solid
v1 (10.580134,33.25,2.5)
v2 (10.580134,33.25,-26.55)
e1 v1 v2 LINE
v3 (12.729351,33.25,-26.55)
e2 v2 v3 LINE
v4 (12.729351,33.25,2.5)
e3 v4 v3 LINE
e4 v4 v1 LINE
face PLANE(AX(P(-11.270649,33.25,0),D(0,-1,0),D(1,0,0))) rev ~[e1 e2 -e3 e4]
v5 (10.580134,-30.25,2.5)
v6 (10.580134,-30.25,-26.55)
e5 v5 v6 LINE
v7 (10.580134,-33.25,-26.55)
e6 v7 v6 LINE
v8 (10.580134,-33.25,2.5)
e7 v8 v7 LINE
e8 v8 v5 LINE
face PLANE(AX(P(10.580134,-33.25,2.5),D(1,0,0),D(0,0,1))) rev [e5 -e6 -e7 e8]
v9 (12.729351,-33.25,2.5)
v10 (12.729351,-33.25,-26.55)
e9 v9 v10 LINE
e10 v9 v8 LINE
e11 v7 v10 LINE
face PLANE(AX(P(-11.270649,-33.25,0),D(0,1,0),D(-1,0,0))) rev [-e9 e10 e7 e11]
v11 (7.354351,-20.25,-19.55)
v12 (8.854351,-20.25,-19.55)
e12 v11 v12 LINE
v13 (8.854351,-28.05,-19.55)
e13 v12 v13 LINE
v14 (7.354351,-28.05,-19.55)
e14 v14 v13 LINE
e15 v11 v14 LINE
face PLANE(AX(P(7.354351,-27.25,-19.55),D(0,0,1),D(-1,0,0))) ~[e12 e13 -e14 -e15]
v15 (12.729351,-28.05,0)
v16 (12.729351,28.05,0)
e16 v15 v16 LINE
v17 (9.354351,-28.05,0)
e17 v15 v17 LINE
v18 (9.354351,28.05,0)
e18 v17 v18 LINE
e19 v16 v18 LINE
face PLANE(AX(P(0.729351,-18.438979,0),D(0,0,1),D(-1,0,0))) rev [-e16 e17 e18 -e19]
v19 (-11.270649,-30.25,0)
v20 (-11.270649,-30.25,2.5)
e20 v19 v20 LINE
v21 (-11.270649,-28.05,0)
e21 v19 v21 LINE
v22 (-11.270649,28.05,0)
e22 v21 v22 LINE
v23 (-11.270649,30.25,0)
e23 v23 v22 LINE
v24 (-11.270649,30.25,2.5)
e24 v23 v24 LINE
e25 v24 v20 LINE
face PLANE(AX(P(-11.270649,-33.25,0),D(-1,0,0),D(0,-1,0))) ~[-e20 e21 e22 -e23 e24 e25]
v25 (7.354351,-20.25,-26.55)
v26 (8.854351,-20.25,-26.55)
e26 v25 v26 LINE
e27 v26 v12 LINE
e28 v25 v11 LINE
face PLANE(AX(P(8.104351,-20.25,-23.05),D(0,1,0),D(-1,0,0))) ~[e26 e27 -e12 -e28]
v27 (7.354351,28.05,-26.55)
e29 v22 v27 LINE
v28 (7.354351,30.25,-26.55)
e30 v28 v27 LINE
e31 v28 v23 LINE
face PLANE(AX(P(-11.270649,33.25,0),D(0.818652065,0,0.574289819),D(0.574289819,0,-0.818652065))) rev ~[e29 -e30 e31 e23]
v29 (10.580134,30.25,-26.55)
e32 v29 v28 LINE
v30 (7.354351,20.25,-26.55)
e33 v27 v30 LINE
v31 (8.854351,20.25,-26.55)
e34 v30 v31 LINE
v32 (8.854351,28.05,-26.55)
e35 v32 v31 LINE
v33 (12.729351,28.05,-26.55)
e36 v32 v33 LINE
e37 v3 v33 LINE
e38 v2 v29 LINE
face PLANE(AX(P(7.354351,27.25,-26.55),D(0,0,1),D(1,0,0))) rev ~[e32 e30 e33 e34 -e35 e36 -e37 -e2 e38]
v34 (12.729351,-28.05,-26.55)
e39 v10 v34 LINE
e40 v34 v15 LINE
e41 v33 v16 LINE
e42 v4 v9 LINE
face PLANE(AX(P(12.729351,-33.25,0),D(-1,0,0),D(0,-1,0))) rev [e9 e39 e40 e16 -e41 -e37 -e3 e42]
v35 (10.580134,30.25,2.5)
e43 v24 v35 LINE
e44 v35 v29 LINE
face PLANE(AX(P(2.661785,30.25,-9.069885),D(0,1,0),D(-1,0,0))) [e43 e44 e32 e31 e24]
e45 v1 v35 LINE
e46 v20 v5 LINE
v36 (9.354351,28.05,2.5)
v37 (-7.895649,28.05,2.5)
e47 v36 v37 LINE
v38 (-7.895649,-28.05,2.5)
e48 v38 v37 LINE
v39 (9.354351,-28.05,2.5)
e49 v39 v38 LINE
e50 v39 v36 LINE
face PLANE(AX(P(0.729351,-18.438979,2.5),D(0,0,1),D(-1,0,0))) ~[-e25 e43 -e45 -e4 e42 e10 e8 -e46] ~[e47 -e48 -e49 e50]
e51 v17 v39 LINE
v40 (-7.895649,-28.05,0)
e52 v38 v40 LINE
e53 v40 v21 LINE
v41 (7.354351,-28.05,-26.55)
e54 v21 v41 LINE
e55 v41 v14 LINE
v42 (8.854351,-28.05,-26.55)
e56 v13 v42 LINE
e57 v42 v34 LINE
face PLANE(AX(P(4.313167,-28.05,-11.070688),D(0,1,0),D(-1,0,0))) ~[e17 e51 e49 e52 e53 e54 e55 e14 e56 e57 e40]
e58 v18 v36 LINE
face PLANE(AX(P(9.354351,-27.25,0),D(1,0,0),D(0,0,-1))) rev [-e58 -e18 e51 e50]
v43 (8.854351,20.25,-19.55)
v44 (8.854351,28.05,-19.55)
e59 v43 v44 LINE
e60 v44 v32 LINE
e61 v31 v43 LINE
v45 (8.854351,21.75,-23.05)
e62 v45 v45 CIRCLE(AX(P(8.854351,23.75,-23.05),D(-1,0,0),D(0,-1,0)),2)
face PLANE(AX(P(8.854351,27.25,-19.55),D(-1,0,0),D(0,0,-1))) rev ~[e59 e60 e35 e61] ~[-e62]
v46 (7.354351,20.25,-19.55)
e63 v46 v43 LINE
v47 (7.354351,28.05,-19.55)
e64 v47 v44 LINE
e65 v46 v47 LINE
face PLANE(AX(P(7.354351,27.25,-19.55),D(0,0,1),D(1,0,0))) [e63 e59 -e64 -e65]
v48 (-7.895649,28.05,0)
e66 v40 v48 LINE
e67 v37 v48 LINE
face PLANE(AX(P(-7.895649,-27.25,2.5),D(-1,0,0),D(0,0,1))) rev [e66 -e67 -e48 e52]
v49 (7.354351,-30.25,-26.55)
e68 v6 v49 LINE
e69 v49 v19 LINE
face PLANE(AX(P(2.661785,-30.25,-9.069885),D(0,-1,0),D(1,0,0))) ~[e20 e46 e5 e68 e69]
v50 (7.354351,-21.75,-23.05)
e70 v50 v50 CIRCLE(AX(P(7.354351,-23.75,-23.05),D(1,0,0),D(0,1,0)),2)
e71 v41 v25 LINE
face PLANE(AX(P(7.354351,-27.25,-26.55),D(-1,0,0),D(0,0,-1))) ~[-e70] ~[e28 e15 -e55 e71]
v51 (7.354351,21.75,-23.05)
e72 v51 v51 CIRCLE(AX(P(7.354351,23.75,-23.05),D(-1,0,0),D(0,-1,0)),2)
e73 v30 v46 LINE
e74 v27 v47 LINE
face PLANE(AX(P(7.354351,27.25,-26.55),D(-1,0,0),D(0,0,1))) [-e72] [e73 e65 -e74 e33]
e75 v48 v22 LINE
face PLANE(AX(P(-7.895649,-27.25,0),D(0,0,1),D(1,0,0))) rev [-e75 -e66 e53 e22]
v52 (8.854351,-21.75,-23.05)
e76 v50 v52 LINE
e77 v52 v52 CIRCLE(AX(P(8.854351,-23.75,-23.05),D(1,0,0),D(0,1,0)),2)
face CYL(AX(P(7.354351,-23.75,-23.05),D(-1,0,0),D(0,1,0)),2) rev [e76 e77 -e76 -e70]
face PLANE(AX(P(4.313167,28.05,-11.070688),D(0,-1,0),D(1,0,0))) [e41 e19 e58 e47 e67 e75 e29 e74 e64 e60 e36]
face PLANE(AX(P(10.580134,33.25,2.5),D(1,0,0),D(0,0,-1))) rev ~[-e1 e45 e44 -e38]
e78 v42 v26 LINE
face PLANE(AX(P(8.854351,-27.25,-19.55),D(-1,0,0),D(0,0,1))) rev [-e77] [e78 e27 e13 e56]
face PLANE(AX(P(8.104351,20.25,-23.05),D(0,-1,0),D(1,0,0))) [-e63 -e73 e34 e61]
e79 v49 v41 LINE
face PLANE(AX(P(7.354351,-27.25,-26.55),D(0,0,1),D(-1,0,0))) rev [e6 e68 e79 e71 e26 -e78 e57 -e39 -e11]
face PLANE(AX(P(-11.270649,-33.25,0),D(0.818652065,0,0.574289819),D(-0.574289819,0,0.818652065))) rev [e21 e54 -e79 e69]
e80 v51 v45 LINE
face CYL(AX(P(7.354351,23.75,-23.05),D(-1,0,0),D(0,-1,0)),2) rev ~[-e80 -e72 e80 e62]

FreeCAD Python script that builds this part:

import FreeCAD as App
import Part
import Sketcher

V = App.Vector
Q = App.Units.Quantity

doc = App.newDocument("Part")
body = doc.addObject("PartDesign::Body", "Body")

# Sketch on XY plane
sketch1 = body.newObject("Sketcher::SketchObject", "Sketch")
sketch1.AttachmentSupport = (doc.getObject("XY_Plane"), [""])
sketch1.MapMode = "FlatFace"
sketch1.addGeometry([
    Part.LineSegment(V(-7.895649, 0, 0), V(-7.895649, 27.25, 0)),  # 0
    Part.LineSegment(V(-7.895649, 27.25, 0), V(9.354351, 27.25, 0)),  # 1
    Part.LineSegment(V(9.354351, 27.25, 0), V(9.354351, 0, 0)),  # 2
    Part.LineSegment(V(9.354351, 0, 0), V(12.729351, 0, 0)),  # 3
    Part.LineSegment(V(12.729351, 0, 0), V(12.729351, 33.25, 0)),  # 4
    Part.LineSegment(V(12.729351, 33.25, 0), V(-11.270649, 33.25, 0)),  # 5
    Part.LineSegment(V(-11.270649, 33.25, 0), V(-11.270649, 0, 0)),  # 6
    Part.LineSegment(V(-11.270649, 0, 0), V(-7.895649, 0, 0)),  # 7
], False)
sketch1.addConstraint([
    Sketcher.Constraint("Coincident", 0, 2, 1, 1),
    Sketcher.Constraint("Coincident", 1, 2, 2, 1),
    Sketcher.Constraint("Coincident", 2, 2, 3, 1),
    Sketcher.Constraint("Coincident", 3, 2, 4, 1),
    Sketcher.Constraint("Coincident", 4, 2, 5, 1),
    Sketcher.Constraint("Coincident", 5, 2, 6, 1),
    Sketcher.Constraint("Coincident", 6, 2, 7, 1),
    Sketcher.Constraint("Coincident", 7, 2, 0, 1),
    Sketcher.Constraint("Vertical", 0),
    Sketcher.Constraint("Horizontal", 1),
    Sketcher.Constraint("Vertical", 2),
    Sketcher.Constraint("Horizontal", 3),
    Sketcher.Constraint("Vertical", 4),
    Sketcher.Constraint("Horizontal", 5),
    Sketcher.Constraint("Vertical", 6),
    Sketcher.Constraint("Horizontal", 7),
    Sketcher.Constraint("PointOnObject", 2, 2, -1),
    Sketcher.Constraint("PointOnObject", 6, 2, -1),
    Sketcher.Constraint("Equal", 3, 7),
    Sketcher.Constraint("DistanceX", 5, 2, 5, 1, Q("24 mm")),
    Sketcher.Constraint("DistanceY", 1, 2, 4, 2, Q("6 mm")),
    Sketcher.Constraint("DistanceX", 1, 1, 1, 2, Q("17.25 mm")),
    Sketcher.Constraint("DistanceY", 0, 1, 0, 2, Q("27.25 mm")),
    Sketcher.Constraint("DistanceX", 0, 2, -1, 1, Q("7.895649 mm")),
])
pad1 = body.newObject("PartDesign::Pad", "Pad")
pad1.Profile = sketch1
pad1.Length = 2.5

# Sketch on XY plane
sketch2 = body.newObject("Sketcher::SketchObject", "Sketch001")
sketch2.AttachmentSupport = (doc.getObject("XY_Plane"), [""])
sketch2.MapMode = "FlatFace"
sketch2.addGeometry([
    Part.LineSegment(V(-11.270649, 27.25, 0), V(-11.270649, 33.25, 0)),
    Part.LineSegment(V(-11.270649, 33.25, 0), V(12.729351, 33.25, 0)),
    Part.LineSegment(V(12.729351, 33.25, 0), V(12.729351, 27.25, 0)),
    Part.LineSegment(V(12.729351, 27.25, 0), V(-11.270649, 27.25, 0)),
], False)
sketch2.addConstraint([
    Sketcher.Constraint("Coincident", 0, 2, 1, 1),
    Sketcher.Constraint("Coincident", 1, 2, 2, 1),
    Sketcher.Constraint("Coincident", 2, 2, 3, 1),
    Sketcher.Constraint("Coincident", 3, 2, 0, 1),
    Sketcher.Constraint("Vertical", 0),
    Sketcher.Constraint("Horizontal", 1),
    Sketcher.Constraint("Vertical", 2),
    Sketcher.Constraint("Horizontal", 3),
    Sketcher.Constraint("DistanceX", 1, 1, 1, 2, Q("24 mm")),
    Sketcher.Constraint("DistanceY", 0, 1, 0, 2, Q("6 mm")),
    Sketcher.Constraint("DistanceY", -1, 1, 0, 2, Q("33.25 mm")),
    Sketcher.Constraint("DistanceX", 0, 2, -1, 1, Q("11.270649 mm")),
])
pad2 = body.newObject("PartDesign::Pad", "Pad001")
pad2.Profile = sketch2
pad2.Length = 26.55
pad2.Reversed = True

# Sketch on XZ plane
sketch3 = body.newObject("Sketcher::SketchObject", "Sketch002")
sketch3.AttachmentSupport = (doc.getObject("XZ_Plane"), [""])
sketch3.MapMode = "FlatFace"
sketch3.AttachmentOffset = App.Placement(V(0, 0, -33.25), App.Rotation())
sketch3.addGeometry([
    Part.LineSegment(V(-11.270649, -26.55, 0), V(-11.270649, 0, 0)),
    Part.LineSegment(V(-11.270649, 0, 0), V(7.354351, -26.55, 0)),
    Part.LineSegment(V(7.354351, -26.55, 0), V(-11.270649, -26.55, 0)),
], False)
sketch3.addConstraint([
    Sketcher.Constraint("Coincident", 0, 2, 1, 1),
    Sketcher.Constraint("Coincident", 1, 2, 2, 1),
    Sketcher.Constraint("Coincident", 2, 2, 0, 1),
    Sketcher.Constraint("Vertical", 0),
    Sketcher.Constraint("Horizontal", 2),
    Sketcher.Constraint("PointOnObject", 0, 2, -1),
    Sketcher.Constraint("DistanceY", 0, 1, 0, 2, Q("26.55 mm")),
    Sketcher.Constraint("DistanceX", 2, 2, 2, 1, Q("18.625 mm")),
    Sketcher.Constraint("DistanceX", 0, 2, -1, 1, Q("11.270649 mm")),
])
pocket1 = body.newObject("PartDesign::Pocket", "Pocket")
pocket1.Profile = sketch3
pocket1.Type = "ThroughAll"
pocket1.Reversed = True

# Sketch on XZ plane
sketch4 = body.newObject("Sketcher::SketchObject", "Sketch003")
sketch4.AttachmentSupport = (doc.getObject("XZ_Plane"), [""])
sketch4.MapMode = "FlatFace"
sketch4.AttachmentOffset = App.Placement(V(0, 0, -27.25), App.Rotation())
sketch4.addGeometry([
    Part.LineSegment(V(7.354351, -19.55, 0), V(7.354351, -26.55, 0)),
    Part.LineSegment(V(7.354351, -26.55, 0), V(8.854351, -26.55, 0)),
    Part.LineSegment(V(8.854351, -26.55, 0), V(8.854351, -19.55, 0)),
    Part.LineSegment(V(8.854351, -19.55, 0), V(7.354351, -19.55, 0)),
], False)
sketch4.addConstraint([
    Sketcher.Constraint("Coincident", 0, 2, 1, 1),
    Sketcher.Constraint("Coincident", 1, 2, 2, 1),
    Sketcher.Constraint("Coincident", 2, 2, 3, 1),
    Sketcher.Constraint("Coincident", 3, 2, 0, 1),
    Sketcher.Constraint("Vertical", 0),
    Sketcher.Constraint("Horizontal", 1),
    Sketcher.Constraint("Vertical", 2),
    Sketcher.Constraint("Horizontal", 3),
    Sketcher.Constraint("DistanceY", 0, 2, 0, 1, Q("7 mm")),
    Sketcher.Constraint("DistanceX", 1, 1, 1, 2, Q("1.5 mm")),
    Sketcher.Constraint("DistanceY", 0, 2, -1, 1, Q("26.55 mm")),
    Sketcher.Constraint("DistanceX", -1, 1, 0, 2, Q("7.354351 mm")),
])
pad3 = body.newObject("PartDesign::Pad", "Pad002")
pad3.Profile = sketch4
pad3.Length = 7

# Sketch on YZ plane
sketch5 = body.newObject("Sketcher::SketchObject", "Sketch004")
sketch5.AttachmentSupport = (doc.getObject("YZ_Plane"), [""])
sketch5.MapMode = "FlatFace"
sketch5.AttachmentOffset = App.Placement(V(0, 0, 7.354351), App.Rotation())
sketch5.addGeometry(Part.Circle(V(23.75, -23.05, 0), V(0, 0, 1), 2), False)
sketch5.addConstraint([
    Sketcher.Constraint("Diameter", 0, Q("4 mm")),
    Sketcher.Constraint("DistanceX", -1, 1, 0, 3, Q("23.75 mm")),
    Sketcher.Constraint("DistanceY", 0, 3, -1, 1, Q("23.05 mm")),
])
pocket2 = body.newObject("PartDesign::Pocket", "Pocket001")
pocket2.Profile = sketch5
pocket2.Length = 25
pocket2.Reversed = True

# Sketch on XZ plane
sketch6 = body.newObject("Sketcher::SketchObject", "Sketch005")
sketch6.AttachmentSupport = (doc.getObject("XZ_Plane"), [""])
sketch6.MapMode = "FlatFace"
sketch6.AttachmentOffset = App.Placement(V(0, 0, -33.25), App.Rotation())
sketch6.addGeometry([
    Part.LineSegment(V(7.354351, -26.55, 0), V(-11.270649, 0, 0)),  # 0
    Part.LineSegment(V(-11.270649, 0, 0), V(-11.270649, 2.5, 0)),  # 1
    Part.LineSegment(V(-11.270649, 2.5, 0), V(10.580134, 2.5, 0)),  # 2
    Part.LineSegment(V(10.580134, 2.5, 0), V(10.580134, -26.55, 0)),  # 3
    Part.LineSegment(V(10.580134, -26.55, 0), V(7.354351, -26.55, 0)),  # 4
], False)
sketch6.addConstraint([
    Sketcher.Constraint("Coincident", 0, 2, 1, 1),
    Sketcher.Constraint("Coincident", 1, 2, 2, 1),
    Sketcher.Constraint("Coincident", 2, 2, 3, 1),
    Sketcher.Constraint("Coincident", 3, 2, 4, 1),
    Sketcher.Constraint("Coincident", 4, 2, 0, 1),
    Sketcher.Constraint("Vertical", 1),
    Sketcher.Constraint("Horizontal", 2),
    Sketcher.Constraint("Vertical", 3),
    Sketcher.Constraint("Horizontal", 4),
    Sketcher.Constraint("PointOnObject", 0, 2, -1),
    Sketcher.Constraint("DistanceY", 1, 1, 1, 2, Q("2.5 mm")),
    Sketcher.Constraint("DistanceY", 3, 2, 3, 1, Q("29.05 mm")),
    Sketcher.Constraint("DistanceX", 0, 2, 4, 2, Q("18.625 mm")),
    Sketcher.Constraint("DistanceX", 2, 1, 2, 2, Q("21.850783 mm")),
    Sketcher.Constraint("DistanceX", 0, 2, -1, 1, Q("11.270649 mm")),
])
pocket3 = body.newObject("PartDesign::Pocket", "Pocket002")
pocket3.Profile = sketch6
pocket3.Length = 3
pocket3.Reversed = True

# Sketch on XZ plane
sketch7 = body.newObject("Sketcher::SketchObject", "Sketch006")
sketch7.AttachmentSupport = (doc.getObject("XZ_Plane"), [""])
sketch7.MapMode = "FlatFace"
sketch7.AttachmentOffset = App.Placement(V(0, 0, -27.25), App.Rotation())
sketch7.addGeometry([
    Part.LineSegment(V(-11.270649, 0, 0), V(7.354351, -26.55, 0)),  # 0
    Part.LineSegment(V(7.354351, -26.55, 0), V(7.354351, -19.55, 0)),  # 1
    Part.LineSegment(V(7.354351, -19.55, 0), V(8.854351, -19.55, 0)),  # 2
    Part.LineSegment(V(8.854351, -19.55, 0), V(8.854351, -26.55, 0)),  # 3
    Part.LineSegment(V(8.854351, -26.55, 0), V(12.729351, -26.55, 0)),  # 4
    Part.LineSegment(V(12.729351, -26.55, 0), V(12.729351, 0, 0)),  # 5
    Part.LineSegment(V(12.729351, 0, 0), V(9.354351, 0, 0)),  # 6
    Part.LineSegment(V(9.354351, 0, 0), V(9.354351, 2.5, 0)),  # 7
    Part.LineSegment(V(9.354351, 2.5, 0), V(-7.895649, 2.5, 0)),  # 8
    Part.LineSegment(V(-7.895649, 2.5, 0), V(-7.895649, 0, 0)),  # 9
    Part.LineSegment(V(-7.895649, 0, 0), V(-11.270649, 0, 0)),  # 10
], False)
sketch7.addConstraint([
    Sketcher.Constraint("Coincident", 0, 2, 1, 1),
    Sketcher.Constraint("Coincident", 1, 2, 2, 1),
    Sketcher.Constraint("Coincident", 2, 2, 3, 1),
    Sketcher.Constraint("Coincident", 3, 2, 4, 1),
    Sketcher.Constraint("Coincident", 4, 2, 5, 1),
    Sketcher.Constraint("Coincident", 5, 2, 6, 1),
    Sketcher.Constraint("Coincident", 6, 2, 7, 1),
    Sketcher.Constraint("Coincident", 7, 2, 8, 1),
    Sketcher.Constraint("Coincident", 8, 2, 9, 1),
    Sketcher.Constraint("Coincident", 9, 2, 10, 1),
    Sketcher.Constraint("Coincident", 10, 2, 0, 1),
    Sketcher.Constraint("Vertical", 1),
    Sketcher.Constraint("Horizontal", 2),
    Sketcher.Constraint("Vertical", 3),
    Sketcher.Constraint("Horizontal", 4),
    Sketcher.Constraint("Vertical", 5),
    Sketcher.Constraint("Horizontal", 6),
    Sketcher.Constraint("Vertical", 7),
    Sketcher.Constraint("Horizontal", 8),
    Sketcher.Constraint("Vertical", 9),
    Sketcher.Constraint("Horizontal", 10),
    Sketcher.Constraint("PointOnObject", 5, 2, -1),
    Sketcher.Constraint("PointOnObject", 9, 2, -1),
    Sketcher.Constraint("Horizontal", 0, 2, 3, 2),
    Sketcher.Constraint("Equal", 6, 10),
    Sketcher.Constraint("DistanceY", 1, 1, 1, 2, Q("7 mm")),
    Sketcher.Constraint("DistanceX", 2, 1, 2, 2, Q("1.5 mm")),
    Sketcher.Constraint("DistanceY", 7, 1, 7, 2, Q("2.5 mm")),
    Sketcher.Constraint("DistanceX", 1, 2, 6, 2, Q("2 mm")),
    Sketcher.Constraint("DistanceX", 10, 2, 5, 2, Q("24 mm")),
    Sketcher.Constraint("DistanceX", 8, 2, 8, 1, Q("17.25 mm")),
    Sketcher.Constraint("DistanceY", 5, 1, 5, 2, Q("26.55 mm")),
    Sketcher.Constraint("DistanceX", -1, 1, 0, 2, Q("7.354351 mm")),
])
pocket4 = body.newObject("PartDesign::Pocket", "Pocket003")
pocket4.Profile = sketch7
pocket4.Length = 0.8
body2 = doc.addObject("PartDesign::Body", "Body001")
doc.recompute()

body2.BaseFeature = body
doc.recompute()

mirroring = doc.addObject("Part::Mirroring", "Mirroring")
mirroring.Source = body
mirroring.Base = V(-9.583149, 0, 1.25)
mirroring.Normal = V(0, -1, 0)
body3 = doc.addObject("PartDesign::Body", "Body002")
body3.BaseFeature = mirroring
boolean = body2.newObject("PartDesign::Boolean", "Boolean")
boolean.Type = "Fuse"
boolean.addObjects([body3])
doc.recompute()
mirroring.Visibility = False

doc.recompute()
